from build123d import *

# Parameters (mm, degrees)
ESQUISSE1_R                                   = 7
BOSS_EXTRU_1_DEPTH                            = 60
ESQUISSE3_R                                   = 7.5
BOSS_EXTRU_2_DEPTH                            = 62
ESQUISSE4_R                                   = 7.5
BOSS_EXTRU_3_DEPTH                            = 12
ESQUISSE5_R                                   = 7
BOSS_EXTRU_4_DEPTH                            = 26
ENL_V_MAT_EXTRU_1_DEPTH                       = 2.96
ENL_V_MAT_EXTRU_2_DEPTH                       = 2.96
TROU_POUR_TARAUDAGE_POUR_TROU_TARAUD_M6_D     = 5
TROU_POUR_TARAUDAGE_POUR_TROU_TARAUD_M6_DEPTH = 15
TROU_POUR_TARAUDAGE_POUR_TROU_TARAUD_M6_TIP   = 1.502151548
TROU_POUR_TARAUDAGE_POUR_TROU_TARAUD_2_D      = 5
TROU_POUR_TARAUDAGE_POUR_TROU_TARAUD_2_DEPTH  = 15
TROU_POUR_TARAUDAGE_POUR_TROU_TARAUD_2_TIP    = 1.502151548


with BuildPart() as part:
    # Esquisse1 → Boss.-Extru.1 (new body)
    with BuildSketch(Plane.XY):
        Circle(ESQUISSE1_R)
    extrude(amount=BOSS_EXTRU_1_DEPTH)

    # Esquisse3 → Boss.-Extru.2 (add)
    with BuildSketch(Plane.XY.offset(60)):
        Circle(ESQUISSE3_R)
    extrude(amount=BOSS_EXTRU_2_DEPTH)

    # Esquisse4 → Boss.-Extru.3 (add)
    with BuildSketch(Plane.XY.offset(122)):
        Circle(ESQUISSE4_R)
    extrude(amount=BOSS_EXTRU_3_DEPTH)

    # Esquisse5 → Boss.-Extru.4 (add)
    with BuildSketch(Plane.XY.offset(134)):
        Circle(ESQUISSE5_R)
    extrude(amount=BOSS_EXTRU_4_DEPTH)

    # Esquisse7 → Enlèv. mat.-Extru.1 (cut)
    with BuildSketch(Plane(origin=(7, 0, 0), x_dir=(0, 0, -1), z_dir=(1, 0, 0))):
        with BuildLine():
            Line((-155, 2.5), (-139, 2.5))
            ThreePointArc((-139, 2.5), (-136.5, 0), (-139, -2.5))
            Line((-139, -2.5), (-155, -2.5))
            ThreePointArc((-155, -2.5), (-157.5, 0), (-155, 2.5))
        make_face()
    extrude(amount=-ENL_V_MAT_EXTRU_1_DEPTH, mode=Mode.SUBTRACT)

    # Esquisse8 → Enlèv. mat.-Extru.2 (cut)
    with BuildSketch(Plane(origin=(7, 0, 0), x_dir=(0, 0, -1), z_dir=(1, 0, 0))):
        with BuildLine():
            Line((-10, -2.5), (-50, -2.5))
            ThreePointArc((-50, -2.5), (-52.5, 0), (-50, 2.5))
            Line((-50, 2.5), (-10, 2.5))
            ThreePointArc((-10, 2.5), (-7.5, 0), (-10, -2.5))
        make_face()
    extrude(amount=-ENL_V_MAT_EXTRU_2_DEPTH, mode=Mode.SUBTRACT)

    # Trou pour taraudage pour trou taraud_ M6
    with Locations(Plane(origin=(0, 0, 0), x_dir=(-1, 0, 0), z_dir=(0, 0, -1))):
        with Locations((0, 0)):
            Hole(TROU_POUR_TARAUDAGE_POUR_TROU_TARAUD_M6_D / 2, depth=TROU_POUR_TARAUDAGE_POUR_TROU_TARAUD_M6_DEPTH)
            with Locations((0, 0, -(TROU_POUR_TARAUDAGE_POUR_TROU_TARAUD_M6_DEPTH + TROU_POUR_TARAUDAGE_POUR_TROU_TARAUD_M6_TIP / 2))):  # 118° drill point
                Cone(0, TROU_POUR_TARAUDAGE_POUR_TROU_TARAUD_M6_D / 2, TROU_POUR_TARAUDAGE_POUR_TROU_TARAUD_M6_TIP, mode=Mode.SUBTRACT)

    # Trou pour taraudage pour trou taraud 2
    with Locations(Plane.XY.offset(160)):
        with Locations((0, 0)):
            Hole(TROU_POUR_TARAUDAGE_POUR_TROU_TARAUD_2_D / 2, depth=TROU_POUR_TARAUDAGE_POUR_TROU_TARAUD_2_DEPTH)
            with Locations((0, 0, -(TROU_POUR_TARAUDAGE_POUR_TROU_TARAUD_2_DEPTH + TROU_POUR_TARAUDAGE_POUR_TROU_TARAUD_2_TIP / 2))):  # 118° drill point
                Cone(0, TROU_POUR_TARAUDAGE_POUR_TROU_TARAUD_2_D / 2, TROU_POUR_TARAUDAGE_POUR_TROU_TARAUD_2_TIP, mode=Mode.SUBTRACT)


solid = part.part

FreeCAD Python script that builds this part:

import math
import FreeCAD as App
import Part
import Sketcher

V = App.Vector

doc = App.newDocument("Part")
body = doc.addObject("PartDesign::Body", "Body")

# Sketch on XY plane
sketch1 = body.newObject("Sketcher::SketchObject", "Sketch")
sketch1.AttachmentSupport = (doc.getObject("XY_Plane"), [""])
sketch1.MapMode = "FlatFace"
sketch1.addGeometry(Part.Circle(V(0, 0, 0), V(0, 0, 1), 7), False)
sketch1.addConstraint(Sketcher.Constraint("Coincident", 0, 3, -1, 1))
sketch1.addConstraint(Sketcher.Constraint("Diameter", 0, 14.0))
pad1 = body.newObject("PartDesign::Pad", "Pad")
pad1.Profile = sketch1
pad1.Length = 60

# Sketch on XY plane
sketch2 = body.newObject("Sketcher::SketchObject", "Sketch001")
sketch2.AttachmentSupport = (doc.getObject("XY_Plane"), [""])
sketch2.MapMode = "FlatFace"
sketch2.AttachmentOffset = App.Placement(V(0, 0, 60), App.Rotation())
sketch2.addGeometry(Part.Circle(V(0, 0, 0), V(0, 0, 1), 8), False)
sketch2.addConstraint(Sketcher.Constraint("Coincident", 0, 3, -1, 1))
sketch2.addConstraint(Sketcher.Constraint("Diameter", 0, 15.0))
pad2 = body.newObject("PartDesign::Pad", "Pad001")
pad2.Profile = sketch2
pad2.Length = 62

# Sketch on XY plane
sketch3 = body.newObject("Sketcher::SketchObject", "Sketch002")
sketch3.AttachmentSupport = (doc.getObject("XY_Plane"), [""])
sketch3.MapMode = "FlatFace"
sketch3.AttachmentOffset = App.Placement(V(0, 0, 122), App.Rotation())
sketch3.addGeometry(Part.Circle(V(0, 0, 0), V(0, 0, 1), 8), False)
sketch3.addConstraint(Sketcher.Constraint("Coincident", 0, 3, -1, 1))
sketch3.addConstraint(Sketcher.Constraint("Diameter", 0, 15.0))
pad3 = body.newObject("PartDesign::Pad", "Pad002")
pad3.Profile = sketch3
pad3.Length = 12

# Sketch on XY plane
sketch4 = body.newObject("Sketcher::SketchObject", "Sketch003")
sketch4.AttachmentSupport = (doc.getObject("XY_Plane"), [""])
sketch4.MapMode = "FlatFace"
sketch4.AttachmentOffset = App.Placement(V(0, 0, 134), App.Rotation())
sketch4.addGeometry(Part.Circle(V(0, 0, 0), V(0, 0, 1), 7), False)
sketch4.addConstraint(Sketcher.Constraint("Coincident", 0, 3, -1, 1))
sketch4.addConstraint(Sketcher.Constraint("Diameter", 0, 14.0))
pad4 = body.newObject("PartDesign::Pad", "Pad003")
pad4.Profile = sketch4
pad4.Length = 26

# Sketch on YZ plane
sketch5 = body.newObject("Sketcher::SketchObject", "Sketch004")
sketch5.AttachmentSupport = (doc.getObject("YZ_Plane"), [""])
sketch5.MapMode = "FlatFace"
sketch5.AttachmentOffset = App.Placement(V(0, 0, 7), App.Rotation())
sketch5.addGeometry(Part.LineSegment(V(2.5, 139, 0), V(2.5, 155, 0)), False)
sketch5.addGeometry(Part.ArcOfCircle(Part.Circle(V(0, 155, 0), V(0, 0, 1), 2.5), math.radians(0), math.radians(180)), False)
sketch5.addGeometry(Part.LineSegment(V(-2.5, 155, 0), V(-2.5, 139, 0)), False)
sketch5.addGeometry(Part.ArcOfCircle(Part.Circle(V(0, 139, 0), V(0, 0, 1), 2.5), math.radians(180), math.radians(360)), False)
sketch5.addConstraint(Sketcher.Constraint("Tangent", 0, 2, 1, 1))
sketch5.addConstraint(Sketcher.Constraint("Tangent", 1, 2, 2, 1))
sketch5.addConstraint(Sketcher.Constraint("Tangent", 2, 2, 3, 1))
sketch5.addConstraint(Sketcher.Constraint("Tangent", 3, 2, 0, 1))
sketch5.addConstraint(Sketcher.Constraint("Vertical", 0))
sketch5.addConstraint(Sketcher.Constraint("Vertical", 2))
sketch5.addConstraint(Sketcher.Constraint("PointOnObject", 1, 3, -2))
sketch5.addConstraint(Sketcher.Constraint("Radius", 1, 2.5))
sketch5.addConstraint(Sketcher.Constraint("DistanceY", 0, 1, 0, 2, 16.0))
sketch5.addConstraint(Sketcher.Constraint("DistanceY", -1, 1, 1, 3, 155.0))
pocket1 = body.newObject("PartDesign::Pocket", "Pocket")
pocket1.Profile = sketch5
pocket1.Length = 2.96

# Sketch on YZ plane
sketch6 = body.newObject("Sketcher::SketchObject", "Sketch005")
sketch6.AttachmentSupport = (doc.getObject("YZ_Plane"), [""])
sketch6.MapMode = "FlatFace"
sketch6.AttachmentOffset = App.Placement(V(0, 0, 7), App.Rotation())
sketch6.addGeometry(Part.LineSegment(V(-2.5, 50, 0), V(-2.5, 10, 0)), False)
sketch6.addGeometry(Part.ArcOfCircle(Part.Circle(V(0, 10, 0), V(0, 0, 1), 2.5), math.radians(180), math.radians(360)), False)
sketch6.addGeometry(Part.LineSegment(V(2.5, 10, 0), V(2.5, 50, 0)), False)
sketch6.addGeometry(Part.ArcOfCircle(Part.Circle(V(0, 50, 0), V(0, 0, 1), 2.5), math.radians(0), math.radians(180)), False)
sketch6.addConstraint(Sketcher.Constraint("Tangent", 0, 2, 1, 1))
sketch6.addConstraint(Sketcher.Constraint("Tangent", 1, 2, 2, 1))
sketch6.addConstraint(Sketcher.Constraint("Tangent", 2, 2, 3, 1))
sketch6.addConstraint(Sketcher.Constraint("Tangent", 3, 2, 0, 1))
sketch6.addConstraint(Sketcher.Constraint("Vertical", 0))
sketch6.addConstraint(Sketcher.Constraint("Vertical", 2))
sketch6.addConstraint(Sketcher.Constraint("PointOnObject", 1, 3, -2))
sketch6.addConstraint(Sketcher.Constraint("Radius", 1, 2.5))
sketch6.addConstraint(Sketcher.Constraint("DistanceY", 0, 2, 0, 1, 40.0))
sketch6.addConstraint(Sketcher.Constraint("DistanceY", -1, 1, 1, 3, 10.0))
pocket2 = body.newObject("PartDesign::Pocket", "Pocket001")
pocket2.Profile = sketch6
pocket2.Length = 2.96

# Sketch on XY plane
sketch7 = body.newObject("Sketcher::SketchObject", "Sketch006")
sketch7.AttachmentSupport = (doc.getObject("XY_Plane"), [""])
sketch7.MapMode = "FlatFace"
sketch7.addGeometry(Part.Circle(V(0, 0, 0), V(0, 0, 1), 2.5), False)
sketch7.addConstraint(Sketcher.Constraint("Coincident", 0, 3, -1, 1))
sketch7.addConstraint(Sketcher.Constraint("Diameter", 0, 5.0))
doc.recompute()
hole = body.newObject("PartDesign::Hole", "Hole")
hole.Profile = sketch7
hole.ThreadType = "None"
hole.Diameter = 5
hole.DepthType = "Dimension"
hole.Depth = 15
hole.DrillPoint = "Angled"
hole.DrillPointAngle = 118
hole.Reversed = True

# Sketch on XY plane
sketch8 = body.newObject("Sketcher::SketchObject", "Sketch007")
sketch8.AttachmentSupport = (doc.getObject("XY_Plane"), [""])
sketch8.MapMode = "FlatFace"
sketch8.AttachmentOffset = App.Placement(V(0, 0, 160), App.Rotation())
sketch8.addGeometry(Part.Circle(V(0, 0, 0), V(0, 0, 1), 2.5), False)
sketch8.addConstraint(Sketcher.Constraint("Coincident", 0, 3, -1, 1))
sketch8.addConstraint(Sketcher.Constraint("Diameter", 0, 5.0))
doc.recompute()
hole2 = body.newObject("PartDesign::Hole", "Hole001")
hole2.Profile = sketch8
hole2.ThreadType = "None"
hole2.Diameter = 5
hole2.DepthType = "Dimension"
hole2.Depth = 15
hole2.DrillPoint = "Angled"
hole2.DrillPointAngle = 118

doc.recompute()
